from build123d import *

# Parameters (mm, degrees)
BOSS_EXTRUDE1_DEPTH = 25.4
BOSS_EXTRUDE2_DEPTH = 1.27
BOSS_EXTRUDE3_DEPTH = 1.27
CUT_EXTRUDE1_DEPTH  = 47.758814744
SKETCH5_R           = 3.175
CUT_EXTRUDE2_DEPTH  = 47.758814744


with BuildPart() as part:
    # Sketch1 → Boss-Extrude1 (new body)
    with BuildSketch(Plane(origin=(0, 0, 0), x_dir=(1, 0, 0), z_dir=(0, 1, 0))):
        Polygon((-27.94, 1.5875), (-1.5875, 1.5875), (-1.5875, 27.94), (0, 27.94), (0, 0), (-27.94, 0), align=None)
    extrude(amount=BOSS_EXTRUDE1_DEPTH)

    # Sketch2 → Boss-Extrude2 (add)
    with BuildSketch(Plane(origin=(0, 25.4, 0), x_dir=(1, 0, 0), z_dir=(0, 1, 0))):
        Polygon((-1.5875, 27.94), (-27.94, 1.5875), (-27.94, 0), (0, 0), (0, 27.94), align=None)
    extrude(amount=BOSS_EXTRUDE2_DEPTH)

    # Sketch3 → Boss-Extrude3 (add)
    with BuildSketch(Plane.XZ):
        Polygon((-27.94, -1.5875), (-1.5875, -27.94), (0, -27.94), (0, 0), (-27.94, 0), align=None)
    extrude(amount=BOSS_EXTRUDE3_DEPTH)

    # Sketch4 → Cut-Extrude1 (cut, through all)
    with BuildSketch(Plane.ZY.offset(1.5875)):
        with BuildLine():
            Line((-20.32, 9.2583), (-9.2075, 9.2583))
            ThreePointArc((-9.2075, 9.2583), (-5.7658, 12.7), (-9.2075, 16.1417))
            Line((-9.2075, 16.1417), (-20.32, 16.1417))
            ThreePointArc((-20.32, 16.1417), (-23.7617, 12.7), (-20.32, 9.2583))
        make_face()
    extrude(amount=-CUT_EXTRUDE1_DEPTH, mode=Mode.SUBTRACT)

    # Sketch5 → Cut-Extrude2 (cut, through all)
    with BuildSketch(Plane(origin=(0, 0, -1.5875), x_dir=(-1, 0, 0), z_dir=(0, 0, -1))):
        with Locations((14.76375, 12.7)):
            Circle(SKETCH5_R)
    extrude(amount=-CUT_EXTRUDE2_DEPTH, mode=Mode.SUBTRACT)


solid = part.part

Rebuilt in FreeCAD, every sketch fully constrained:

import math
import FreeCAD as App
import Part
import Sketcher
Q = App.Units.Quantity

doc = App.newDocument("Part")
body = doc.addObject("PartDesign::Body", "Body")

# Sketch on XZ plane
sketch1 = body.newObject("Sketcher::SketchObject", "Sketch")
sketch1.AttachmentSupport = (doc.getObject("XZ_Plane"), [""])
sketch1.MapMode = "FlatFace"
sketch1.addGeometry([
    Part.LineSegment(App.Vector(-1.6, -1.6, 0), App.Vector(-27.9, -1.6, 0)),  # 0
    Part.LineSegment(App.Vector(-27.9, -1.6, 0), App.Vector(-27.9, 0, 0)),  # 1
    Part.LineSegment(App.Vector(-27.9, 0, 0), App.Vector(0, 0, 0)),  # 2
    Part.LineSegment(App.Vector(0, 0, 0), App.Vector(0, -27.9, 0)),  # 3
    Part.LineSegment(App.Vector(0, -27.9, 0), App.Vector(-1.6, -27.9, 0)),  # 4
    Part.LineSegment(App.Vector(-1.6, -27.9, 0), App.Vector(-1.6, -1.6, 0)),  # 5
], False)
sketch1.addConstraint([
    Sketcher.Constraint("Coincident", 0, 2, 1, 1),
    Sketcher.Constraint("Coincident", 1, 2, 2, 1),
    Sketcher.Constraint("Coincident", 2, 2, 3, 1),
    Sketcher.Constraint("Coincident", 3, 2, 4, 1),
    Sketcher.Constraint("Coincident", 4, 2, 5, 1),
    Sketcher.Constraint("Coincident", 5, 2, 0, 1),
    Sketcher.Constraint("Horizontal", 0),
    Sketcher.Constraint("Vertical", 1),
    Sketcher.Constraint("Horizontal", 2),
    Sketcher.Constraint("Vertical", 3),
    Sketcher.Constraint("Horizontal", 4),
    Sketcher.Constraint("Vertical", 5),
    Sketcher.Constraint("Coincident", 2, 2, -1, 1),
    Sketcher.Constraint("Equal", 4, 1),
    Sketcher.Constraint("Equal", 2, 3),
    Sketcher.Constraint("DistanceX", 2, 1, 2, 2, Q("1.1 in")),
    Sketcher.Constraint("DistanceX", 4, 2, 4, 1, Q("0.0625 in")),
])
pad1 = body.newObject("PartDesign::Pad", "Pad")
pad1.Profile = sketch1
pad1.Length = Q("1 in")
pad1.Reversed = True

# Sketch on XZ plane
sketch2 = body.newObject("Sketcher::SketchObject", "Sketch001")
sketch2.AttachmentSupport = (doc.getObject("XZ_Plane"), [""])
sketch2.MapMode = "FlatFace"
sketch2.AttachmentOffset = App.Placement(App.Vector(0, 0, -1 * 25.4), App.Rotation())
sketch2.addGeometry([
    Part.LineSegment(App.Vector(-1.6, -27.9, 0), App.Vector(-27.9, -1.6, 0)),  # 0
    Part.LineSegment(App.Vector(-27.9, -1.6, 0), App.Vector(-27.9, 0, 0)),  # 1
    Part.LineSegment(App.Vector(-27.9, 0, 0), App.Vector(0, 0, 0)),  # 2
    Part.LineSegment(App.Vector(0, 0, 0), App.Vector(0, -27.9, 0)),  # 3
    Part.LineSegment(App.Vector(0, -27.9, 0), App.Vector(-1.6, -27.9, 0)),  # 4
], False)
sketch2.addConstraint([
    Sketcher.Constraint("Coincident", 0, 2, 1, 1),
    Sketcher.Constraint("Coincident", 1, 2, 2, 1),
    Sketcher.Constraint("Coincident", 2, 2, 3, 1),
    Sketcher.Constraint("Coincident", 3, 2, 4, 1),
    Sketcher.Constraint("Coincident", 4, 2, 0, 1),
    Sketcher.Constraint("Vertical", 1),
    Sketcher.Constraint("Horizontal", 2),
    Sketcher.Constraint("Vertical", 3),
    Sketcher.Constraint("Horizontal", 4),
    Sketcher.Constraint("Coincident", 2, 2, -1, 1),
    Sketcher.Constraint("Equal", 4, 1),
    Sketcher.Constraint("Equal", 2, 3),
    Sketcher.Constraint("DistanceX", 2, 1, 2, 2, Q("1.1 in")),
    Sketcher.Constraint("DistanceX", 4, 2, 4, 1, Q("0.0625 in")),
])
pad2 = body.newObject("PartDesign::Pad", "Pad001")
pad2.Profile = sketch2
pad2.Length = Q("0.05 in")
pad2.Reversed = True

# Sketch on XZ plane
sketch3 = body.newObject("Sketcher::SketchObject", "Sketch002")
sketch3.AttachmentSupport = (doc.getObject("XZ_Plane"), [""])
sketch3.MapMode = "FlatFace"
sketch3.addGeometry([
    Part.LineSegment(App.Vector(-27.9, -1.6, 0), App.Vector(-1.6, -27.9, 0)),  # 0
    Part.LineSegment(App.Vector(-1.6, -27.9, 0), App.Vector(0, -27.9, 0)),  # 1
    Part.LineSegment(App.Vector(0, -27.9, 0), App.Vector(0, 0, 0)),  # 2
    Part.LineSegment(App.Vector(0, 0, 0), App.Vector(-27.9, 0, 0)),  # 3
    Part.LineSegment(App.Vector(-27.9, 0, 0), App.Vector(-27.9, -1.6, 0)),  # 4
], False)
sketch3.addConstraint([
    Sketcher.Constraint("Coincident", 0, 2, 1, 1),
    Sketcher.Constraint("Coincident", 1, 2, 2, 1),
    Sketcher.Constraint("Coincident", 2, 2, 3, 1),
    Sketcher.Constraint("Coincident", 3, 2, 4, 1),
    Sketcher.Constraint("Coincident", 4, 2, 0, 1),
    Sketcher.Constraint("Horizontal", 1),
    Sketcher.Constraint("Vertical", 2),
    Sketcher.Constraint("Horizontal", 3),
    Sketcher.Constraint("Vertical", 4),
    Sketcher.Constraint("Coincident", 2, 2, -1, 1),
    Sketcher.Constraint("Equal", 3, 2),
    Sketcher.Constraint("Equal", 1, 4),
    Sketcher.Constraint("DistanceX", 3, 2, 3, 1, Q("1.1 in")),
    Sketcher.Constraint("DistanceX", 1, 1, 1, 2, Q("0.0625 in")),
])
pad3 = body.newObject("PartDesign::Pad", "Pad002")
pad3.Profile = sketch3
pad3.Length = Q("0.05 in")

# Sketch on YZ plane
sketch4 = body.newObject("Sketcher::SketchObject", "Sketch003")
sketch4.AttachmentSupport = (doc.getObject("YZ_Plane"), [""])
sketch4.MapMode = "FlatFace"
sketch4.AttachmentOffset = App.Placement(App.Vector(0, 0, -0.0625 * 25.4), App.Rotation())
sketch4.addGeometry([
    Part.LineSegment(App.Vector(9.3, -20.3, 0), App.Vector(9.3, -9.2, 0)),
    Part.ArcOfCircle(Part.Circle(App.Vector(12.7, -9.2, 0), App.Vector(0, 0, 1), 3.4), math.radians(0), math.radians(180)),
    Part.LineSegment(App.Vector(16.1, -9.2, 0), App.Vector(16.1, -20.3, 0)),
    Part.ArcOfCircle(Part.Circle(App.Vector(12.7, -20.3, 0), App.Vector(0, 0, 1), 3.4), math.radians(180), math.radians(360)),
], False)
sketch4.addConstraint([
    Sketcher.Constraint("Tangent", 0, 2, 1, 2),
    Sketcher.Constraint("Tangent", 1, 1, 2, 1),
    Sketcher.Constraint("Tangent", 2, 2, 3, 2),
    Sketcher.Constraint("Tangent", 3, 1, 0, 1),
    Sketcher.Constraint("Vertical", 0),
    Sketcher.Constraint("Vertical", 2),
    Sketcher.Constraint("DistanceX", -1, 1, 1, 3, Q("0.5 in")),
    Sketcher.Constraint("DistanceY", 3, 3, -1, 1, Q("0.8 in")),
    Sketcher.Constraint("Radius", 1, Q("0.1355 in")),
    Sketcher.Constraint("DistanceY", 0, 1, 0, 2, Q("0.4375 in")),
])
pocket1 = body.newObject("PartDesign::Pocket", "Pocket")
pocket1.Profile = sketch4
pocket1.Type = "ThroughAll"
pocket1.Reversed = True

# Sketch on XY plane
sketch5 = body.newObject("Sketcher::SketchObject", "Sketch004")
sketch5.AttachmentSupport = (doc.getObject("XY_Plane"), [""])
sketch5.MapMode = "FlatFace"
sketch5.AttachmentOffset = App.Placement(App.Vector(0, 0, -0.0625 * 25.4), App.Rotation())
sketch5.addGeometry(Part.Circle(App.Vector(-14.8, 12.7, 0), App.Vector(0, 0, 1), 3.2), False)
sketch5.addConstraint([
    Sketcher.Constraint("Diameter", 0, Q("0.25 in")),
    Sketcher.Constraint("DistanceY", -1, 1, 0, 3, Q("0.5 in")),
    Sketcher.Constraint("DistanceX", 0, 3, -1, 1, Q("14.76375 mm")),
])
pocket2 = body.newObject("PartDesign::Pocket", "Pocket001")
pocket2.Profile = sketch5
pocket2.Type = "ThroughAll"
pocket2.Reversed = True

doc.recompute()
